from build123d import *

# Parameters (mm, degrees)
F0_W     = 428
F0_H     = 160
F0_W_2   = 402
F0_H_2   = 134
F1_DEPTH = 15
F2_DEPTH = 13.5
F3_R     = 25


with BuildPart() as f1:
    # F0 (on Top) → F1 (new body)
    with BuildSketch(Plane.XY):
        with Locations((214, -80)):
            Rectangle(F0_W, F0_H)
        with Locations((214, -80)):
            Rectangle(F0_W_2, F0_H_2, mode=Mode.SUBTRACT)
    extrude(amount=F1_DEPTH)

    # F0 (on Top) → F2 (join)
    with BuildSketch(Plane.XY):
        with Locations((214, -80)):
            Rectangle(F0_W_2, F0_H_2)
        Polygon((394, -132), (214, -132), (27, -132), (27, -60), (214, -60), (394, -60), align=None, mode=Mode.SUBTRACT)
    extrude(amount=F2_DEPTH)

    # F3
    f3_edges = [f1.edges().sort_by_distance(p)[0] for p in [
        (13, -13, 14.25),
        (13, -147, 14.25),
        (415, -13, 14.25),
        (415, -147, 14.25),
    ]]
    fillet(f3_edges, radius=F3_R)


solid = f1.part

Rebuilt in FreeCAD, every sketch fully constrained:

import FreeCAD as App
import Part
import Sketcher

V = App.Vector
Q = App.Units.Quantity


def edges_at(feature, points):
    """Names of the edges that pass closest to the given points."""
    edges = feature.Shape.Edges
    near = lambda p: min(range(len(edges)), key=lambda i: edges[i].distToShape(Part.Vertex(*p))[0])
    return sorted({f"Edge{near(p) + 1}" for p in points})


def add_polygon(sketch, points):
    """Adds a closed chain of lines whose ends are joined by coincident constraints."""
    first, n = sketch.GeometryCount, len(points)
    for a, b in zip(points, points[1:] + points[:1]):
        sketch.addGeometry(Part.LineSegment(App.Vector(*a, 0), App.Vector(*b, 0)), False)
    for i in range(n):
        sketch.addConstraint(Sketcher.Constraint("Coincident", first + i, 2, first + (i + 1) % n, 1))

doc = App.newDocument("Part")
params = doc.addObject("Spreadsheet::Sheet", "Params")
for row, (alias, value) in enumerate([
    ("sketch1_width", "428 mm"),
    ("sketch1_width2", "402 mm"),
    ("sketch1_height", "160 mm"),
    ("sketch1_height2", "134 mm"),
    ("pad1_length", "15 mm"),
    ("sketch2_width", "402 mm"),
    ("sketch2_width2", "367 mm"),
    ("sketch2_height", "134 mm"),
    ("sketch2_height2", "72 mm"),
    ("pad2_length", "13.5 mm"),
    ("fillet_radius", "25 mm"),
], start=1):
    params.set(f"A{row}", alias)
    params.set(f"B{row}", "=" + value)
    params.setAlias(f"B{row}", alias)

body = doc.addObject("PartDesign::Body", "Body")

sketch1 = doc.addObject("Sketcher::SketchObject", "Sketch")
body.addObject(sketch1)
sketch1.AttachmentSupport = (doc.XY_Plane, [""])
sketch1.MapMode = "FlatFace"
add_polygon(sketch1, [(0, 0), (0, -160), (428, -160), (428, 0)])
add_polygon(sketch1, [(415, -147), (13, -147), (13, -13), (415, -13)])
sketch1.addConstraint([
    Sketcher.Constraint("Vertical", 0),
    Sketcher.Constraint("Horizontal", 1),
    Sketcher.Constraint("Vertical", 2),
    Sketcher.Constraint("Horizontal", 3),
    Sketcher.Constraint("Horizontal", 4),
    Sketcher.Constraint("Vertical", 5),
    Sketcher.Constraint("Horizontal", 6),
    Sketcher.Constraint("Vertical", 7),
    Sketcher.Constraint("Coincident", 3, 2, -1, 1),
    Sketcher.Constraint("DistanceX", 1, 1, 1, 2, Q("428 mm")),
    Sketcher.Constraint("DistanceX", 4, 2, 4, 1, Q("402 mm")),
    Sketcher.Constraint("DistanceY", 0, 2, 0, 1, Q("160 mm")),
    Sketcher.Constraint("DistanceY", 5, 1, 5, 2, Q("134 mm")),
    Sketcher.Constraint("DistanceX", -1, 1, 4, 2, Q("13 mm")),
    Sketcher.Constraint("DistanceY", 4, 2, -1, 1, Q("147 mm")),
])
sketch1.setExpression("Constraints[17]", "Params.sketch1_width")
sketch1.setExpression("Constraints[18]", "Params.sketch1_width2")
sketch1.setExpression("Constraints[19]", "Params.sketch1_height")
sketch1.setExpression("Constraints[20]", "Params.sketch1_height2")
pad1 = doc.addObject("PartDesign::Pad", "Pad")
body.addObject(pad1)
pad1.Profile = sketch1
pad1.setExpression("Length", "Params.pad1_length")

sketch2 = doc.addObject("Sketcher::SketchObject", "Sketch001")
body.addObject(sketch2)
sketch2.AttachmentSupport = (doc.XY_Plane, [""])
sketch2.MapMode = "FlatFace"
add_polygon(sketch2, [(13, -13), (13, -147), (415, -147), (415, -13)])
add_polygon(sketch2, [(394, -60), (394, -132), (27, -132), (27, -60)])
sketch2.addConstraint([
    Sketcher.Constraint("Vertical", 0),
    Sketcher.Constraint("Horizontal", 1),
    Sketcher.Constraint("Vertical", 2),
    Sketcher.Constraint("Horizontal", 3),
    Sketcher.Constraint("Vertical", 4),
    Sketcher.Constraint("Horizontal", 5),
    Sketcher.Constraint("Vertical", 6),
    Sketcher.Constraint("Horizontal", 7),
    Sketcher.Constraint("DistanceX", 1, 1, 1, 2, Q("402 mm")),
    Sketcher.Constraint("DistanceX", 5, 2, 5, 1, Q("367 mm")),
    Sketcher.Constraint("DistanceY", 0, 2, 0, 1, Q("134 mm")),
    Sketcher.Constraint("DistanceY", 4, 2, 4, 1, Q("72 mm")),
    Sketcher.Constraint("DistanceX", -1, 1, 0, 2, Q("13 mm")),
    Sketcher.Constraint("DistanceY", 0, 2, -1, 1, Q("147 mm")),
    Sketcher.Constraint("DistanceX", -1, 1, 4, 2, Q("394 mm")),
    Sketcher.Constraint("DistanceY", 4, 2, -1, 1, Q("132 mm")),
])
sketch2.setExpression("Constraints[16]", "Params.sketch2_width")
sketch2.setExpression("Constraints[17]", "Params.sketch2_width2")
sketch2.setExpression("Constraints[18]", "Params.sketch2_height")
sketch2.setExpression("Constraints[19]", "Params.sketch2_height2")
pad2 = doc.addObject("PartDesign::Pad", "Pad001")
body.addObject(pad2)
pad2.Profile = sketch2
pad2.setExpression("Length", "Params.pad2_length")
doc.recompute()

fillet = doc.addObject("PartDesign::Fillet", "Fillet")
body.addObject(fillet)
fillet.Base = (pad2, edges_at(pad2, [
    (13, -13, 14.25),
    (13, -147, 14.25),
    (415, -13, 14.25),
    (415, -147, 14.25),
]))
fillet.setExpression("Radius", "Params.fillet_radius")

doc.recompute()
